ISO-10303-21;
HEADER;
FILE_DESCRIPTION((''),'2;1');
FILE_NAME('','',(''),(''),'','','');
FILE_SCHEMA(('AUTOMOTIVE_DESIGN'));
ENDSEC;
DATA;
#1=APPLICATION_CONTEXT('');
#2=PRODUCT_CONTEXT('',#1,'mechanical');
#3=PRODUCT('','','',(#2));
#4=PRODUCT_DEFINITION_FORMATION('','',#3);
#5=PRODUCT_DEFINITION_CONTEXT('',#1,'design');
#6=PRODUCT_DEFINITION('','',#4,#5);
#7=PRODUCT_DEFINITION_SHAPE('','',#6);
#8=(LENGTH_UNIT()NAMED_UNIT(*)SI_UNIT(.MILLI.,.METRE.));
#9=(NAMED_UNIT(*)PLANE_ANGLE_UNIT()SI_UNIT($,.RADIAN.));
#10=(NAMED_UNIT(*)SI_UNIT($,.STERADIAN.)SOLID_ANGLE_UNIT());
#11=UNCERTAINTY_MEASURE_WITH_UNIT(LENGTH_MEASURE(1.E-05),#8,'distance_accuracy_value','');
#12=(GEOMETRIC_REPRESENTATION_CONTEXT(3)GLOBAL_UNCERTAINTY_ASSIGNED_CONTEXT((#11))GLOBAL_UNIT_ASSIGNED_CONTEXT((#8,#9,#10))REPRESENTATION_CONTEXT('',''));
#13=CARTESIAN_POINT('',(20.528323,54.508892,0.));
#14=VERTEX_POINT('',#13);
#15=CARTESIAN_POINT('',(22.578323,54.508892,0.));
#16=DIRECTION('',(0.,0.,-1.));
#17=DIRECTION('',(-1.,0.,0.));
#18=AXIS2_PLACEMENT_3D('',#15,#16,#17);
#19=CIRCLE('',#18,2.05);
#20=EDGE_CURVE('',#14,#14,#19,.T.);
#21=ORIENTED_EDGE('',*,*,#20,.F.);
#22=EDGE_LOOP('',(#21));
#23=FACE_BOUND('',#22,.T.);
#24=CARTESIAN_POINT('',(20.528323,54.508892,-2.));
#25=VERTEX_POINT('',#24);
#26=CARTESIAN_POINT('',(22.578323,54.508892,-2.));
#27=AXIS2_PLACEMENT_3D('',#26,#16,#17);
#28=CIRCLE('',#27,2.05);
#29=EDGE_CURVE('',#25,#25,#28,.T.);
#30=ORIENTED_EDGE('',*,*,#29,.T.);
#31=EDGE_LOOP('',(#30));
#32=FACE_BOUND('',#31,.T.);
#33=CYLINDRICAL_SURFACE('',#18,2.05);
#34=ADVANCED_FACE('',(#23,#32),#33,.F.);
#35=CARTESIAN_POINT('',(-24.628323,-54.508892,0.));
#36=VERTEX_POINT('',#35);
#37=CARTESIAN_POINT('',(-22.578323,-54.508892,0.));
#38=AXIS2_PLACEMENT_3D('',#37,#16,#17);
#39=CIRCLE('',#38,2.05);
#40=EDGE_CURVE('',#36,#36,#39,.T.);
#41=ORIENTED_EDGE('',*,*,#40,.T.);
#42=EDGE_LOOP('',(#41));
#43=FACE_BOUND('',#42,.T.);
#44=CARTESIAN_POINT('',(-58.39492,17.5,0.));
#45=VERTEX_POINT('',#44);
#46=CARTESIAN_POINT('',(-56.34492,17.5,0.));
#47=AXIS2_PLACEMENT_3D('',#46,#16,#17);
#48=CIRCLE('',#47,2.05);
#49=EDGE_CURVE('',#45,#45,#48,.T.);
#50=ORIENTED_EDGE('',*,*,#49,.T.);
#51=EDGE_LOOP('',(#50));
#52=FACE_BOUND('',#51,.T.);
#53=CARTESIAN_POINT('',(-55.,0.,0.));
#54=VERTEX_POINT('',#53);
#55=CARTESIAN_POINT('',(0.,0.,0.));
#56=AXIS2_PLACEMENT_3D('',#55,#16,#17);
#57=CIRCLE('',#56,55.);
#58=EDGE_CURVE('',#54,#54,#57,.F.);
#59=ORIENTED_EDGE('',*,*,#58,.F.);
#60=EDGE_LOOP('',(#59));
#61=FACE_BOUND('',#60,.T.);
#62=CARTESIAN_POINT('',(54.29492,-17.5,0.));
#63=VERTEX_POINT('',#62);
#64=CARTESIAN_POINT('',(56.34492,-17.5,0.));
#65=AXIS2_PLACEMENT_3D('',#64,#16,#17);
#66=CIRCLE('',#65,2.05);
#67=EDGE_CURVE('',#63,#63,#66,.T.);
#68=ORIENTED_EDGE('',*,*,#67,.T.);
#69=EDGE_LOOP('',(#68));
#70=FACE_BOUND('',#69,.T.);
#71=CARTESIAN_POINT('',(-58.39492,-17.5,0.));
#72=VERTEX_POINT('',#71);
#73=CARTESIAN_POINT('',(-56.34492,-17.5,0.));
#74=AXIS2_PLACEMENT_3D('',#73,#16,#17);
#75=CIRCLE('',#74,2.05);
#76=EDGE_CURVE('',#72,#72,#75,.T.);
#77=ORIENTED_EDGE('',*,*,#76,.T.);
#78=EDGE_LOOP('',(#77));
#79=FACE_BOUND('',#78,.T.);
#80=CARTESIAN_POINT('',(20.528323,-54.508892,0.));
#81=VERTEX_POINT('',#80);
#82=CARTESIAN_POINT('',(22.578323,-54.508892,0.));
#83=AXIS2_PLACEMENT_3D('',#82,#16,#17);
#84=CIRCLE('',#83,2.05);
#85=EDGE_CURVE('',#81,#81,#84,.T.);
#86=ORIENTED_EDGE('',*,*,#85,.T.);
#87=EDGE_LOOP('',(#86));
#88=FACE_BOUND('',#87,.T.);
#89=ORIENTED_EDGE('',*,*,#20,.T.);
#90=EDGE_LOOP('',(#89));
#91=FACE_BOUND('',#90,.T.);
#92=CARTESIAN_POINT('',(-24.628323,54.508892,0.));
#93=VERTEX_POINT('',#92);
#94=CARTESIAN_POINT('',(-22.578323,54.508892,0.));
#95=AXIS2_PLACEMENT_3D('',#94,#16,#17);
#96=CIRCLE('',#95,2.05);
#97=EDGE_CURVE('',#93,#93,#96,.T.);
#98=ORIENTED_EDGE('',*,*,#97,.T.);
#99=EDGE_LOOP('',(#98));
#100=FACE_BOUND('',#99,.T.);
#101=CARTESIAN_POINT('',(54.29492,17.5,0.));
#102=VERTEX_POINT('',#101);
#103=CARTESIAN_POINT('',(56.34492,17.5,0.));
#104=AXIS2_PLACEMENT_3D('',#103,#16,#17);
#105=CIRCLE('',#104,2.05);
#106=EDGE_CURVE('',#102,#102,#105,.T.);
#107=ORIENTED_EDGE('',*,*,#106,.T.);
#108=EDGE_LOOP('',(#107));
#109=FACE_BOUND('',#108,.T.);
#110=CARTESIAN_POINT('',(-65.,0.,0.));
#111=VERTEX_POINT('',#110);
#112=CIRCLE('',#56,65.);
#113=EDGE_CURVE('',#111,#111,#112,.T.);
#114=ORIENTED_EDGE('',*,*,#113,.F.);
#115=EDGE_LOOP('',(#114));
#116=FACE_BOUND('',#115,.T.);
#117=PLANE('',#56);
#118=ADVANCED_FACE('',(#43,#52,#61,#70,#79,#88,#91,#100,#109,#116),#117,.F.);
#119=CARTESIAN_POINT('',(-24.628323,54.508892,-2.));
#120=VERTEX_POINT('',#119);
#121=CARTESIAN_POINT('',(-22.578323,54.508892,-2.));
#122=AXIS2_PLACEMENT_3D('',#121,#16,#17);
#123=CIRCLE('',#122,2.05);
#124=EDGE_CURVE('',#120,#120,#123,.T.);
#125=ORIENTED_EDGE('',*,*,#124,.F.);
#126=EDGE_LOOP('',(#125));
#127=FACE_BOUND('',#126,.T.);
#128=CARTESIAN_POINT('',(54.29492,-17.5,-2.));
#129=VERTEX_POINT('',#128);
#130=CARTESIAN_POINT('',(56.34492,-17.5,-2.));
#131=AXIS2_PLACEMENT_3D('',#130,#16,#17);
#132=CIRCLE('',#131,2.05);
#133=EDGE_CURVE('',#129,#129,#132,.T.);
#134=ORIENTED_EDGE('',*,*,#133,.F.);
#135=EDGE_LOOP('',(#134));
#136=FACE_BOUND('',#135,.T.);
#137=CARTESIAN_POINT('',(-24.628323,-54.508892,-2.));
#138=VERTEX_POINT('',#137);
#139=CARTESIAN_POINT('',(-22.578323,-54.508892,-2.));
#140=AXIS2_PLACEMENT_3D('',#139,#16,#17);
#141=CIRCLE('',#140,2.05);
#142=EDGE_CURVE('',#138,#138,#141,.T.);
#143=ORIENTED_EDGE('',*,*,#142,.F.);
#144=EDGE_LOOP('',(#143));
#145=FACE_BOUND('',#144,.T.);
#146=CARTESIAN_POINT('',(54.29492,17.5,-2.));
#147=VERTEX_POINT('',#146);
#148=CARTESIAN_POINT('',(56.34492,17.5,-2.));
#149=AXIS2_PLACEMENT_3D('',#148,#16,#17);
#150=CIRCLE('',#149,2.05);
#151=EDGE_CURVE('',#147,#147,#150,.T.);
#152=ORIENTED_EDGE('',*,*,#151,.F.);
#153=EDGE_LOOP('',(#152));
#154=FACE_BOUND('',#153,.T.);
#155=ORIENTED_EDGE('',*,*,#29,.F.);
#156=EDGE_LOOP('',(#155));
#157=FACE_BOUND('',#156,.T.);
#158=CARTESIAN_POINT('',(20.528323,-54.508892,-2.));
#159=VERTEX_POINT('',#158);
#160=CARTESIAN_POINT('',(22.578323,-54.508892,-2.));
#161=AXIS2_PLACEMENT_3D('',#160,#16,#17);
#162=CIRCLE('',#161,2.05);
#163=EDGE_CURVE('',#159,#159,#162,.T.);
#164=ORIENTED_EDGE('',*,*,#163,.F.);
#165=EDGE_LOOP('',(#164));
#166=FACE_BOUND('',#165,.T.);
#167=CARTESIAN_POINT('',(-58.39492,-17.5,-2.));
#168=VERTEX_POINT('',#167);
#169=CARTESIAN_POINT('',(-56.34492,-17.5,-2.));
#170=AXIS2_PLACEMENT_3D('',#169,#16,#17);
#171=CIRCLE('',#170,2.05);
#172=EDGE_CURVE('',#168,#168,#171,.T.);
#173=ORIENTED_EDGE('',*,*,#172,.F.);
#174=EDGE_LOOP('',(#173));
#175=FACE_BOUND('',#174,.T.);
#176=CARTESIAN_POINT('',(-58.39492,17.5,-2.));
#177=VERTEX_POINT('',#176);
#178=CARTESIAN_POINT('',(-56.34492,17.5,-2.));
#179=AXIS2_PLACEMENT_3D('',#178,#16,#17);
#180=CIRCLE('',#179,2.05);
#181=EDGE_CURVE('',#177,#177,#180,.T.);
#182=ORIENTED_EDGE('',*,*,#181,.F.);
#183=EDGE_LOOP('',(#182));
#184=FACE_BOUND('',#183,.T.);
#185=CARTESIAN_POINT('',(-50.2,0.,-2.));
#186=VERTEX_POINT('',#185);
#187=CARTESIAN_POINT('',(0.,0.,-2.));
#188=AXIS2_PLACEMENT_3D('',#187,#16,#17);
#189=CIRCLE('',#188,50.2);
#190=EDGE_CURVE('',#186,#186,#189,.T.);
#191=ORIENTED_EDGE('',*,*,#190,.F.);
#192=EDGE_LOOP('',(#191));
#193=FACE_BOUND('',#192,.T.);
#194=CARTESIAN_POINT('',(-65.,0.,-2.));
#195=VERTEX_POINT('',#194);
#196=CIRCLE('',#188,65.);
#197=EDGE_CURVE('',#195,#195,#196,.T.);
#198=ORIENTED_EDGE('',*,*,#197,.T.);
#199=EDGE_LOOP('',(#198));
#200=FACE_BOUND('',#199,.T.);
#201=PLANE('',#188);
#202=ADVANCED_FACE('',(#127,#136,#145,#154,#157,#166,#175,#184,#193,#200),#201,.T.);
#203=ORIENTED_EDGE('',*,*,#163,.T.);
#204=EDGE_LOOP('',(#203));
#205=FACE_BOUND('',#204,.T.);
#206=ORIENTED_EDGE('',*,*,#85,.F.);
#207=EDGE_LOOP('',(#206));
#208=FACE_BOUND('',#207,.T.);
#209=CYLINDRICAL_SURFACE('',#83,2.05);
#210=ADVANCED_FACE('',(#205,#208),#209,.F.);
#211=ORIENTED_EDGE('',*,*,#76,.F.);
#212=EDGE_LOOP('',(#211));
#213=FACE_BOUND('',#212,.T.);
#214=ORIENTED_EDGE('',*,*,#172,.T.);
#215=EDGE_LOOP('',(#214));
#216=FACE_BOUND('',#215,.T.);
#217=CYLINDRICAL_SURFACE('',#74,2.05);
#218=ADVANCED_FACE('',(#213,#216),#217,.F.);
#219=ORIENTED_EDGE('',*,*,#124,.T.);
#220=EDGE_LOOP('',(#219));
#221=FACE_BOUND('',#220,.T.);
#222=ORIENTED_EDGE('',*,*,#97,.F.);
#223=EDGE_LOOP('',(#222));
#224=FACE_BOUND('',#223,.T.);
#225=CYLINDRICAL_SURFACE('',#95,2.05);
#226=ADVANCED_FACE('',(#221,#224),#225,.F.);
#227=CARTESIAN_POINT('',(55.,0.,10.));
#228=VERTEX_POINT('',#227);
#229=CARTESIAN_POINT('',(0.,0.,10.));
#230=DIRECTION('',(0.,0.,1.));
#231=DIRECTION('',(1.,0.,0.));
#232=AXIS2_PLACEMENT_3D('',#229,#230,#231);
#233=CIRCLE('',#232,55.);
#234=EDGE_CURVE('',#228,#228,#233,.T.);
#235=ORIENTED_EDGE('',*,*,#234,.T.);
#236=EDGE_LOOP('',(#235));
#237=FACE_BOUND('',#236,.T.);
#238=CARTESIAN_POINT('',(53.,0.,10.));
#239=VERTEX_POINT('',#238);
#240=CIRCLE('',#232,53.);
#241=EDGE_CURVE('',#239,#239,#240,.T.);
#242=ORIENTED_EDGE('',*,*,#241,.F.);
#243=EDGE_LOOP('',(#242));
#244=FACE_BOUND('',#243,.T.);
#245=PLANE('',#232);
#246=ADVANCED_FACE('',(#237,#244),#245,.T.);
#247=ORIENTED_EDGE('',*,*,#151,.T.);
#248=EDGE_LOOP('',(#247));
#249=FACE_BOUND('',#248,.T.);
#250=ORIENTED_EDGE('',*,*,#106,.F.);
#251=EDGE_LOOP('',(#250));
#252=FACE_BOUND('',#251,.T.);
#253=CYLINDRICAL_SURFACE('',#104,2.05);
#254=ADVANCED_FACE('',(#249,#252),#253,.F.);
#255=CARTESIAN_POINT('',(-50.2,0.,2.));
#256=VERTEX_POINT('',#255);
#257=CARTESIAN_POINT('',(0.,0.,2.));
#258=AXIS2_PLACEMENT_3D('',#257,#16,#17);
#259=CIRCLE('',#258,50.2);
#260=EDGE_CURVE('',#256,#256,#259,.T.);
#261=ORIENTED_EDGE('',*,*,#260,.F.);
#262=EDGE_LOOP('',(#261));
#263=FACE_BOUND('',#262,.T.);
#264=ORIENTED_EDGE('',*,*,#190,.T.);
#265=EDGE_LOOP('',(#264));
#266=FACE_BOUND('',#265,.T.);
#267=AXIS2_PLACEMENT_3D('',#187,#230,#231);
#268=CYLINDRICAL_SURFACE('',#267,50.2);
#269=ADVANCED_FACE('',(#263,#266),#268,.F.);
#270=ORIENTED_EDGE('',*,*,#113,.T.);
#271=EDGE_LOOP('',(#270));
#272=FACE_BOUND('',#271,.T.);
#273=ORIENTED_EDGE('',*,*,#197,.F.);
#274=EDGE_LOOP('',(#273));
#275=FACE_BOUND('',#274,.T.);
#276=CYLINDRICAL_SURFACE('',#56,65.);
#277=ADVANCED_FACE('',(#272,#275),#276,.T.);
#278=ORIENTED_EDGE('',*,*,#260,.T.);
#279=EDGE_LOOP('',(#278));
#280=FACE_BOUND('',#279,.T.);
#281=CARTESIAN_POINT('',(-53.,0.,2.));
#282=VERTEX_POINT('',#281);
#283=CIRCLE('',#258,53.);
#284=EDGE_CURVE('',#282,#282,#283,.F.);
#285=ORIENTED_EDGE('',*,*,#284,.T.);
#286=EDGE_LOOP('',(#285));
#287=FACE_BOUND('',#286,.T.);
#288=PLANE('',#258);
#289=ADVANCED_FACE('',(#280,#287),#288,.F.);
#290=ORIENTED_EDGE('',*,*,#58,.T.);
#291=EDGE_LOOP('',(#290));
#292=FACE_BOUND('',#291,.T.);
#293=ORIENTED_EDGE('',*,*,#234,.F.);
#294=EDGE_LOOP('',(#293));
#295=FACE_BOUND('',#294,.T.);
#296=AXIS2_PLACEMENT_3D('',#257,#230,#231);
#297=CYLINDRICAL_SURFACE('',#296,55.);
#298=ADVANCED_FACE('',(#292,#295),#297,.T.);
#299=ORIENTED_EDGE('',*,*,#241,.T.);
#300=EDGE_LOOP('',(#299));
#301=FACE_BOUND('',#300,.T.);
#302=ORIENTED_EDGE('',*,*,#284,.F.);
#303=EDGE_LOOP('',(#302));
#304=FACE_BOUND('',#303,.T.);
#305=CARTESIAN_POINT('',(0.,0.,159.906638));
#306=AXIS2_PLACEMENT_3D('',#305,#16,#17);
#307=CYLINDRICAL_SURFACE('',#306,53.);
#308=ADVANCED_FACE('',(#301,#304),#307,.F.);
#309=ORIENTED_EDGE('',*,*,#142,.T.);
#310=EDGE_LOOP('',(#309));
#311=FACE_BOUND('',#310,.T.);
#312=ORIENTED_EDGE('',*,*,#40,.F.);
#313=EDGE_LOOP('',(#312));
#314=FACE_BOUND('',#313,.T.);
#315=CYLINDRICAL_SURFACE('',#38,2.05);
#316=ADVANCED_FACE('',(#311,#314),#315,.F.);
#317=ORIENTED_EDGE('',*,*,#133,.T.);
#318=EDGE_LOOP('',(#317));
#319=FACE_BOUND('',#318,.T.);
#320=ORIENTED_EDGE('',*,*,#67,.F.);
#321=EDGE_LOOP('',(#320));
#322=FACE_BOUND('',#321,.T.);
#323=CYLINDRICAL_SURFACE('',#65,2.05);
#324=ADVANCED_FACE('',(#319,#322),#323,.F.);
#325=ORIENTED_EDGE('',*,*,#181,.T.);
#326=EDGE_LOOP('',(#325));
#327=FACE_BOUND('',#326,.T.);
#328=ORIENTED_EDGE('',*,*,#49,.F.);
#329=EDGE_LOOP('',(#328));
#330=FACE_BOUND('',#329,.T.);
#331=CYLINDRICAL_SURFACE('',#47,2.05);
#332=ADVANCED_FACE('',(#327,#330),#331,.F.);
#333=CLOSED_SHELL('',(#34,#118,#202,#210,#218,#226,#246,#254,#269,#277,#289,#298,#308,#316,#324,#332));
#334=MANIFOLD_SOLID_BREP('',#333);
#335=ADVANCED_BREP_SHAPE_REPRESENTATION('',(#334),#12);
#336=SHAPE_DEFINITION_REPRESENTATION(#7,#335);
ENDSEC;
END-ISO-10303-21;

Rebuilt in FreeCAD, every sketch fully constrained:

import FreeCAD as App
import Part
import Sketcher

doc = App.newDocument("Part")
params = doc.addObject("Spreadsheet::Sheet", "Params")
for row, (alias, value) in enumerate([
    ("sketch1_diameter", "130 mm"),
    ("sketch1_diameter2", "1 mm"),
    ("sketch1_diameter3", "100.4 mm"),
    ("pad1_length", "10 mm"),
    ("sketch2_diameter", "106 mm"),
    ("pocket1_length", "8 mm"),
    ("sketch3_diameter", "130 mm"),
    ("sketch3_diameter2", "110 mm"),
    ("pocket2_length", "8 mm"),
    ("sketch4_diameter", "130 mm"),
    ("sketch4_diameter2", "110 mm"),
    ("pocket3_length", "30 mm"),
    ("sketch5_diameter", "106 mm"),
    ("pocket4_length", "30 mm"),
    ("sketch6_diameter", "110 mm"),
    ("sketch6_diameter2", "100.4 mm"),
    ("pad2_length", "4 mm"),
    ("sketch7_diameter", "130 mm"),
    ("sketch7_diameter2", "4.1 mm"),
    ("sketch7_diameter3", "100.4 mm"),
    ("pad3_length", "2 mm"),
], start=1):
    params.set(f"A{row}", alias)
    params.set(f"B{row}", "=" + value)
    params.setAlias(f"B{row}", alias)

body = doc.addObject("PartDesign::Body", "Body")

# Sketch on XY plane
sketch1 = body.newObject("Sketcher::SketchObject", "Sketch")
sketch1.AttachmentSupport = (doc.getObject("XY_Plane"), [""])
sketch1.MapMode = "FlatFace"
sketch1.addGeometry([
    Part.Circle(App.Vector(0, 0, 0), App.Vector(0, 0, 1), 65),  # 0
    Part.Circle(App.Vector(-29.5, -51.095499, 0), App.Vector(0, 0, 1), 0.5),  # 1
    Part.Circle(App.Vector(-51.095499, -29.5, 0), App.Vector(0, 0, 1), 0.5),  # 2
    Part.Circle(App.Vector(0, -59, 0), App.Vector(0, 0, 1), 0.5),  # 3
    Part.Circle(App.Vector(29.5, -51.095499, 0), App.Vector(0, 0, 1), 0.5),  # 4
    Part.Circle(App.Vector(51.095499, -29.5, 0), App.Vector(0, 0, 1), 0.5),  # 5
    Part.Circle(App.Vector(-59, 0, 0), App.Vector(0, 0, 1), 0.5),  # 6
    Part.Circle(App.Vector(-51.095499, 29.5, 0), App.Vector(0, 0, 1), 0.5),  # 7
    Part.Circle(App.Vector(-29.5, 51.095499, 0), App.Vector(0, 0, 1), 0.5),  # 8
    Part.Circle(App.Vector(0, 0, 0), App.Vector(0, 0, 1), 50.2),  # 9
    Part.Circle(App.Vector(59, 0, 0), App.Vector(0, 0, 1), 0.5),  # 10
    Part.Circle(App.Vector(51.095499, 29.5, 0), App.Vector(0, 0, 1), 0.5),  # 11
    Part.Circle(App.Vector(0, 59, 0), App.Vector(0, 0, 1), 0.5),  # 12
    Part.Circle(App.Vector(29.5, 51.095499, 0), App.Vector(0, 0, 1), 0.5),  # 13
], False)
sketch1.addConstraint([
    Sketcher.Constraint("Coincident", 0, 3, -1, 1),
    Sketcher.Constraint("Coincident", 9, 3, -1, 1),
    Sketcher.Constraint("Equal", 1, 2),
    Sketcher.Constraint("Equal", 2, 3),
    Sketcher.Constraint("Equal", 3, 4),
    Sketcher.Constraint("Equal", 4, 5),
    Sketcher.Constraint("Equal", 5, 6),
    Sketcher.Constraint("Equal", 6, 7),
    Sketcher.Constraint("Equal", 7, 8),
    Sketcher.Constraint("Equal", 8, 10),
    Sketcher.Constraint("Equal", 10, 11),
    Sketcher.Constraint("Equal", 11, 12),
    Sketcher.Constraint("Equal", 12, 13),
    Sketcher.Constraint("Symmetric", 5, 3, 7, 3, -1, 1),
    Sketcher.Constraint("Symmetric", 4, 3, 8, 3, -1, 1),
    Sketcher.Constraint("Symmetric", 6, 3, 10, 3, -1, 1),
    Sketcher.Constraint("Symmetric", 2, 3, 11, 3, -1, 1),
    Sketcher.Constraint("Symmetric", 3, 3, 12, 3, -1, 1),
    Sketcher.Constraint("Symmetric", 1, 3, 13, 3, -1, 1),
    Sketcher.Constraint("Symmetric", 1, 3, 4, 3, -2),
    Sketcher.Constraint("Symmetric", 2, 3, 5, 3, -2),
    Sketcher.Constraint("PointOnObject", 3, 3, -2),
    Sketcher.Constraint("PointOnObject", 6, 3, -1),
    Sketcher.Constraint("Diameter", 0, 130.0),
    Sketcher.Constraint("Diameter", 1, 1.0),
    Sketcher.Constraint("Diameter", 9, 100.4),
    Sketcher.Constraint("DistanceY", 3, 3, -1, 1, 59.0),
    Sketcher.Constraint("DistanceX", 6, 3, -1, 1, 59.0),
    Sketcher.Constraint("DistanceX", 1, 3, 4, 3, 59.0),
    Sketcher.Constraint("DistanceY", 2, 3, 7, 3, 59.0),
    Sketcher.Constraint("DistanceY", 1, 3, -1, 1, 51.095499),
    Sketcher.Constraint("DistanceX", 2, 3, -1, 1, 51.095499),
])
sketch1.setExpression("Constraints[23]", "Params.sketch1_diameter")
sketch1.setExpression("Constraints[24]", "Params.sketch1_diameter2")
sketch1.setExpression("Constraints[25]", "Params.sketch1_diameter3")
pad1 = body.newObject("PartDesign::Pad", "Pad")
pad1.Profile = sketch1
pad1.setExpression("Length", "Params.pad1_length")

# Sketch on XY plane
sketch2 = body.newObject("Sketcher::SketchObject", "Sketch001")
sketch2.AttachmentSupport = (doc.getObject("XY_Plane"), [""])
sketch2.MapMode = "FlatFace"
sketch2.addGeometry(Part.Circle(App.Vector(0, 0, 0), App.Vector(0, 0, 1), 53), False)
sketch2.addConstraint([
    Sketcher.Constraint("Coincident", 0, 3, -1, 1),
    Sketcher.Constraint("Diameter", 0, 106.0),
])
sketch2.setExpression("Constraints[1]", "Params.sketch2_diameter")
pocket1 = body.newObject("PartDesign::Pocket", "Pocket")
pocket1.Profile = sketch2
pocket1.setExpression("Length", "Params.pocket1_length")
pocket1.Reversed = True

# Sketch on XY plane
sketch3 = body.newObject("Sketcher::SketchObject", "Sketch002")
sketch3.AttachmentSupport = (doc.getObject("XY_Plane"), [""])
sketch3.MapMode = "FlatFace"
sketch3.AttachmentOffset = App.Placement(App.Vector(0, 0, 2), App.Rotation())
sketch3.addGeometry([
    Part.Circle(App.Vector(0, 0, 0), App.Vector(0, 0, 1), 65),
    Part.Circle(App.Vector(0, 0, 0), App.Vector(0, 0, 1), 55),
], False)
sketch3.addConstraint([
    Sketcher.Constraint("Coincident", 0, 3, -1, 1),
    Sketcher.Constraint("Coincident", 1, 3, -1, 1),
    Sketcher.Constraint("Diameter", 0, 130.0),
    Sketcher.Constraint("Diameter", 1, 110.0),
])
sketch3.setExpression("Constraints[2]", "Params.sketch3_diameter")
sketch3.setExpression("Constraints[3]", "Params.sketch3_diameter2")
pocket2 = body.newObject("PartDesign::Pocket", "Pocket001")
pocket2.Profile = sketch3
pocket2.setExpression("Length", "Params.pocket2_length")
pocket2.Reversed = True

# Sketch on XY plane
sketch4 = body.newObject("Sketcher::SketchObject", "Sketch003")
sketch4.AttachmentSupport = (doc.getObject("XY_Plane"), [""])
sketch4.MapMode = "FlatFace"
sketch4.AttachmentOffset = App.Placement(App.Vector(0, 0, 2), App.Rotation())
sketch4.addGeometry([
    Part.Circle(App.Vector(0, 0, 0), App.Vector(0, 0, 1), 65),
    Part.Circle(App.Vector(0, 0, 0), App.Vector(0, 0, 1), 55),
], False)
sketch4.addConstraint([
    Sketcher.Constraint("Coincident", 0, 3, -1, 1),
    Sketcher.Constraint("Coincident", 1, 3, -1, 1),
    Sketcher.Constraint("Diameter", 0, 130.0),
    Sketcher.Constraint("Diameter", 1, 110.0),
])
sketch4.setExpression("Constraints[2]", "Params.sketch4_diameter")
sketch4.setExpression("Constraints[3]", "Params.sketch4_diameter2")
pocket3 = body.newObject("PartDesign::Pocket", "Pocket002")
pocket3.Profile = sketch4
pocket3.setExpression("Length", "Params.pocket3_length")
pocket3.Midplane = True

# Sketch on XY plane
sketch5 = body.newObject("Sketcher::SketchObject", "Sketch004")
sketch5.AttachmentSupport = (doc.getObject("XY_Plane"), [""])
sketch5.MapMode = "FlatFace"
sketch5.AttachmentOffset = App.Placement(App.Vector(0, 0, 8), App.Rotation())
sketch5.addGeometry(Part.Circle(App.Vector(0, 0, 0), App.Vector(0, 0, 1), 53), False)
sketch5.addConstraint([
    Sketcher.Constraint("Coincident", 0, 3, -1, 1),
    Sketcher.Constraint("Diameter", 0, 106.0),
])
sketch5.setExpression("Constraints[1]", "Params.sketch5_diameter")
pocket4 = body.newObject("PartDesign::Pocket", "Pocket003")
pocket4.Profile = sketch5
pocket4.setExpression("Length", "Params.pocket4_length")
pocket4.Midplane = True

# Sketch on XY plane
sketch6 = body.newObject("Sketcher::SketchObject", "Sketch005")
sketch6.AttachmentSupport = (doc.getObject("XY_Plane"), [""])
sketch6.MapMode = "FlatFace"
sketch6.addGeometry([
    Part.Circle(App.Vector(0, 0, 0), App.Vector(0, 0, 1), 55),
    Part.Circle(App.Vector(0, 0, 0), App.Vector(0, 0, 1), 50.2),
], False)
sketch6.addConstraint([
    Sketcher.Constraint("Coincident", 0, 3, -1, 1),
    Sketcher.Constraint("Coincident", 1, 3, -1, 1),
    Sketcher.Constraint("Diameter", 0, 110.0),
    Sketcher.Constraint("Diameter", 1, 100.4),
])
sketch6.setExpression("Constraints[2]", "Params.sketch6_diameter")
sketch6.setExpression("Constraints[3]", "Params.sketch6_diameter2")
pad2 = body.newObject("PartDesign::Pad", "Pad001")
pad2.Profile = sketch6
pad2.setExpression("Length", "Params.pad2_length")
pad2.Midplane = True

# Sketch on XY plane
sketch7 = body.newObject("Sketcher::SketchObject", "Sketch006")
sketch7.AttachmentSupport = (doc.getObject("XY_Plane"), [""])
sketch7.MapMode = "FlatFace"
sketch7.addGeometry([
    Part.Circle(App.Vector(0, 0, 0), App.Vector(0, 0, 1), 65),  # 0
    Part.Circle(App.Vector(22.578323, -54.508892, 0), App.Vector(0, 0, 1), 2.05),  # 1
    Part.Circle(App.Vector(56.34492, -17.5, 0), App.Vector(0, 0, 1), 2.05),  # 2
    Part.Circle(App.Vector(-22.578323, -54.508892, 0), App.Vector(0, 0, 1), 2.05),  # 3
    Part.Circle(App.Vector(0, 0, 0), App.Vector(0, 0, 1), 50.2),  # 4
    Part.Circle(App.Vector(-56.34492, -17.5, 0), App.Vector(0, 0, 1), 2.05),  # 5
    Part.Circle(App.Vector(56.34492, 17.5, 0), App.Vector(0, 0, 1), 2.05),  # 6
    Part.Circle(App.Vector(22.578323, 54.508892, 0), App.Vector(0, 0, 1), 2.05),  # 7
    Part.Circle(App.Vector(-56.34492, 17.5, 0), App.Vector(0, 0, 1), 2.05),  # 8
    Part.Circle(App.Vector(-22.578323, 54.508892, 0), App.Vector(0, 0, 1), 2.05),  # 9
], False)
sketch7.addConstraint([
    Sketcher.Constraint("Coincident", 0, 3, -1, 1),
    Sketcher.Constraint("Coincident", 4, 3, -1, 1),
    Sketcher.Constraint("Equal", 1, 2),
    Sketcher.Constraint("Equal", 2, 3),
    Sketcher.Constraint("Equal", 3, 5),
    Sketcher.Constraint("Equal", 5, 6),
    Sketcher.Constraint("Equal", 6, 7),
    Sketcher.Constraint("Equal", 7, 8),
    Sketcher.Constraint("Equal", 8, 9),
    Sketcher.Constraint("Symmetric", 5, 3, 6, 3, -1, 1),
    Sketcher.Constraint("Symmetric", 3, 3, 7, 3, -1, 1),
    Sketcher.Constraint("Symmetric", 2, 3, 8, 3, -1, 1),
    Sketcher.Constraint("Symmetric", 1, 3, 9, 3, -1, 1),
    Sketcher.Constraint("Symmetric", 1, 3, 3, 3, -2),
    Sketcher.Constraint("Symmetric", 2, 3, 5, 3, -2),
    Sketcher.Constraint("Diameter", 0, 130.0),
    Sketcher.Constraint("Diameter", 1, 4.1),
    Sketcher.Constraint("Diameter", 4, 100.4),
    Sketcher.Constraint("DistanceY", 2, 3, 6, 3, 35.0),
    Sketcher.Constraint("DistanceX", -1, 1, 2, 3, 56.34492),
    Sketcher.Constraint("DistanceX", -1, 1, 1, 3, 22.578323),
    Sketcher.Constraint("DistanceY", 1, 3, -1, 1, 54.508892),
])
sketch7.setExpression("Constraints[15]", "Params.sketch7_diameter")
sketch7.setExpression("Constraints[16]", "Params.sketch7_diameter2")
sketch7.setExpression("Constraints[17]", "Params.sketch7_diameter3")
pad3 = body.newObject("PartDesign::Pad", "Pad002")
pad3.Profile = sketch7
pad3.setExpression("Length", "Params.pad3_length")
pad3.Reversed = True

doc.recompute()
